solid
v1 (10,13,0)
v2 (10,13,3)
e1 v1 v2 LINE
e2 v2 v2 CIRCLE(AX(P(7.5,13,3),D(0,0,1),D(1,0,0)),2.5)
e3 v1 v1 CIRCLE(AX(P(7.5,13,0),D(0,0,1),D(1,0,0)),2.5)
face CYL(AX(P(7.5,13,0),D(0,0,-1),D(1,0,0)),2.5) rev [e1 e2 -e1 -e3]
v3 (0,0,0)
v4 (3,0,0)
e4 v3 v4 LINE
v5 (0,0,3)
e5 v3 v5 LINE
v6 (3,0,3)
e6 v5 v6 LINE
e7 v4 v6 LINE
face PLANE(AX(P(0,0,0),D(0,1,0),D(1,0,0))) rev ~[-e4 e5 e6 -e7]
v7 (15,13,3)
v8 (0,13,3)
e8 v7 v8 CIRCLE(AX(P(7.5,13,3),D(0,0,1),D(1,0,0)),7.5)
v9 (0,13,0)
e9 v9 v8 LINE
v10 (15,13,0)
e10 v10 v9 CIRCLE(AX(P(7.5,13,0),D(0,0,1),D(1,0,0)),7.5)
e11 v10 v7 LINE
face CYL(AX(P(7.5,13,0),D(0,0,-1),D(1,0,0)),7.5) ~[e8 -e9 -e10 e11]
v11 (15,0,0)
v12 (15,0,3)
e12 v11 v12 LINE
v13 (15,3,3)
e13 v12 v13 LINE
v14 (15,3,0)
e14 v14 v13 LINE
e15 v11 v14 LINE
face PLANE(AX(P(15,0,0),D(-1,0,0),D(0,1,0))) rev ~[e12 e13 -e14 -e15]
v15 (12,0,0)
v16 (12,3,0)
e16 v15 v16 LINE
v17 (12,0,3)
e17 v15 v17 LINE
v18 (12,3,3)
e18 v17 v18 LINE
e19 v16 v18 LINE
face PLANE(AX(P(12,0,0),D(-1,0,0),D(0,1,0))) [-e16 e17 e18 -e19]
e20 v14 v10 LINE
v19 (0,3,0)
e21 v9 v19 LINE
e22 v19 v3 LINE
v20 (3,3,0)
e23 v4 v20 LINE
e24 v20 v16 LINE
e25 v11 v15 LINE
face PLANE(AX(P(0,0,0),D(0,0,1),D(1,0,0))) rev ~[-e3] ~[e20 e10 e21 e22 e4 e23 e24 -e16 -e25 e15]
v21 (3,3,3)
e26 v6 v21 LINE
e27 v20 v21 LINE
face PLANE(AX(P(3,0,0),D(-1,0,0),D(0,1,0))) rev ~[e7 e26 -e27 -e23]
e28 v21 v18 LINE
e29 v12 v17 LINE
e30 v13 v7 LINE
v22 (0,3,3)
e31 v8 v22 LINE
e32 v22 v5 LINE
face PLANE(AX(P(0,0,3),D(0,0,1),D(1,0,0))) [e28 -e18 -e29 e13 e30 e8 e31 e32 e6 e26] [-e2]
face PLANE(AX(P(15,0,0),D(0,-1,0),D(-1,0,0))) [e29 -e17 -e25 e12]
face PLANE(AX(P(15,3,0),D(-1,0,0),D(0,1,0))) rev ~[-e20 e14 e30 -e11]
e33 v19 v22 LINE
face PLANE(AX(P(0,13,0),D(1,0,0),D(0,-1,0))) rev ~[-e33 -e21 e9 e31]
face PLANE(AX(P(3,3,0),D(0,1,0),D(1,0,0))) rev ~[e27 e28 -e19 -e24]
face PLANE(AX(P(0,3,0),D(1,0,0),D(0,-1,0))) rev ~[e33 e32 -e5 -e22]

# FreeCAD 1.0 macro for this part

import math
import FreeCAD as App
import Part
import Sketcher
Q = App.Units.Quantity

doc = App.newDocument("Part")
body = doc.addObject("PartDesign::Body", "Body")

# Sketch on XY plane
sketch1 = body.newObject("Sketcher::SketchObject", "Sketch")
sketch1.AttachmentSupport = (doc.getObject("XY_Plane"), [""])
sketch1.MapMode = "FlatFace"
sketch1.addGeometry([
    Part.LineSegment(App.Vector(12, 0, 0), App.Vector(15, 0, 0)),  # 0
    Part.LineSegment(App.Vector(15, 0, 0), App.Vector(15, 13, 0)),  # 1
    Part.ArcOfCircle(Part.Circle(App.Vector(7.5, 13, 0), App.Vector(0, 0, 1), 7.5), math.radians(0), math.radians(180)),  # 2
    Part.LineSegment(App.Vector(0, 13, 0), App.Vector(0, 0, 0)),  # 3
    Part.LineSegment(App.Vector(0, 0, 0), App.Vector(3, 0, 0)),  # 4
    Part.LineSegment(App.Vector(3, 0, 0), App.Vector(3, 3, 0)),  # 5
    Part.LineSegment(App.Vector(3, 3, 0), App.Vector(12, 3, 0)),  # 6
    Part.LineSegment(App.Vector(12, 3, 0), App.Vector(12, 0, 0)),  # 7
    Part.Circle(App.Vector(7.5, 13, 0), App.Vector(0, 0, 1), 2.5),  # 8
], False)
sketch1.addConstraint([
    Sketcher.Constraint("Coincident", 0, 2, 1, 1),
    Sketcher.Constraint("Tangent", 1, 2, 2, 1),
    Sketcher.Constraint("Tangent", 2, 2, 3, 1),
    Sketcher.Constraint("Coincident", 3, 2, 4, 1),
    Sketcher.Constraint("Coincident", 4, 2, 5, 1),
    Sketcher.Constraint("Coincident", 5, 2, 6, 1),
    Sketcher.Constraint("Coincident", 6, 2, 7, 1),
    Sketcher.Constraint("Coincident", 7, 2, 0, 1),
    Sketcher.Constraint("Horizontal", 0),
    Sketcher.Constraint("Vertical", 1),
    Sketcher.Constraint("Vertical", 3),
    Sketcher.Constraint("Horizontal", 4),
    Sketcher.Constraint("Vertical", 5),
    Sketcher.Constraint("Horizontal", 6),
    Sketcher.Constraint("Vertical", 7),
    Sketcher.Constraint("Coincident", 3, 2, -1, 1),
    Sketcher.Constraint("Coincident", 8, 3, 2, 3),
    Sketcher.Constraint("PointOnObject", 0, 2, -1),
    Sketcher.Constraint("Equal", 0, 4),
    Sketcher.Constraint("Equal", 4, 5),
    Sketcher.Constraint("Diameter", 8, Q("5 mm")),
    Sketcher.Constraint("Radius", 2, Q("7.5 mm")),
    Sketcher.Constraint("DistanceY", 1, 1, 1, 2, Q("13 mm")),
    Sketcher.Constraint("DistanceX", 0, 1, 0, 2, Q("3 mm")),
])
pad1 = body.newObject("PartDesign::Pad", "Pad")
pad1.Profile = sketch1
pad1.Length = 3

doc.recompute()
